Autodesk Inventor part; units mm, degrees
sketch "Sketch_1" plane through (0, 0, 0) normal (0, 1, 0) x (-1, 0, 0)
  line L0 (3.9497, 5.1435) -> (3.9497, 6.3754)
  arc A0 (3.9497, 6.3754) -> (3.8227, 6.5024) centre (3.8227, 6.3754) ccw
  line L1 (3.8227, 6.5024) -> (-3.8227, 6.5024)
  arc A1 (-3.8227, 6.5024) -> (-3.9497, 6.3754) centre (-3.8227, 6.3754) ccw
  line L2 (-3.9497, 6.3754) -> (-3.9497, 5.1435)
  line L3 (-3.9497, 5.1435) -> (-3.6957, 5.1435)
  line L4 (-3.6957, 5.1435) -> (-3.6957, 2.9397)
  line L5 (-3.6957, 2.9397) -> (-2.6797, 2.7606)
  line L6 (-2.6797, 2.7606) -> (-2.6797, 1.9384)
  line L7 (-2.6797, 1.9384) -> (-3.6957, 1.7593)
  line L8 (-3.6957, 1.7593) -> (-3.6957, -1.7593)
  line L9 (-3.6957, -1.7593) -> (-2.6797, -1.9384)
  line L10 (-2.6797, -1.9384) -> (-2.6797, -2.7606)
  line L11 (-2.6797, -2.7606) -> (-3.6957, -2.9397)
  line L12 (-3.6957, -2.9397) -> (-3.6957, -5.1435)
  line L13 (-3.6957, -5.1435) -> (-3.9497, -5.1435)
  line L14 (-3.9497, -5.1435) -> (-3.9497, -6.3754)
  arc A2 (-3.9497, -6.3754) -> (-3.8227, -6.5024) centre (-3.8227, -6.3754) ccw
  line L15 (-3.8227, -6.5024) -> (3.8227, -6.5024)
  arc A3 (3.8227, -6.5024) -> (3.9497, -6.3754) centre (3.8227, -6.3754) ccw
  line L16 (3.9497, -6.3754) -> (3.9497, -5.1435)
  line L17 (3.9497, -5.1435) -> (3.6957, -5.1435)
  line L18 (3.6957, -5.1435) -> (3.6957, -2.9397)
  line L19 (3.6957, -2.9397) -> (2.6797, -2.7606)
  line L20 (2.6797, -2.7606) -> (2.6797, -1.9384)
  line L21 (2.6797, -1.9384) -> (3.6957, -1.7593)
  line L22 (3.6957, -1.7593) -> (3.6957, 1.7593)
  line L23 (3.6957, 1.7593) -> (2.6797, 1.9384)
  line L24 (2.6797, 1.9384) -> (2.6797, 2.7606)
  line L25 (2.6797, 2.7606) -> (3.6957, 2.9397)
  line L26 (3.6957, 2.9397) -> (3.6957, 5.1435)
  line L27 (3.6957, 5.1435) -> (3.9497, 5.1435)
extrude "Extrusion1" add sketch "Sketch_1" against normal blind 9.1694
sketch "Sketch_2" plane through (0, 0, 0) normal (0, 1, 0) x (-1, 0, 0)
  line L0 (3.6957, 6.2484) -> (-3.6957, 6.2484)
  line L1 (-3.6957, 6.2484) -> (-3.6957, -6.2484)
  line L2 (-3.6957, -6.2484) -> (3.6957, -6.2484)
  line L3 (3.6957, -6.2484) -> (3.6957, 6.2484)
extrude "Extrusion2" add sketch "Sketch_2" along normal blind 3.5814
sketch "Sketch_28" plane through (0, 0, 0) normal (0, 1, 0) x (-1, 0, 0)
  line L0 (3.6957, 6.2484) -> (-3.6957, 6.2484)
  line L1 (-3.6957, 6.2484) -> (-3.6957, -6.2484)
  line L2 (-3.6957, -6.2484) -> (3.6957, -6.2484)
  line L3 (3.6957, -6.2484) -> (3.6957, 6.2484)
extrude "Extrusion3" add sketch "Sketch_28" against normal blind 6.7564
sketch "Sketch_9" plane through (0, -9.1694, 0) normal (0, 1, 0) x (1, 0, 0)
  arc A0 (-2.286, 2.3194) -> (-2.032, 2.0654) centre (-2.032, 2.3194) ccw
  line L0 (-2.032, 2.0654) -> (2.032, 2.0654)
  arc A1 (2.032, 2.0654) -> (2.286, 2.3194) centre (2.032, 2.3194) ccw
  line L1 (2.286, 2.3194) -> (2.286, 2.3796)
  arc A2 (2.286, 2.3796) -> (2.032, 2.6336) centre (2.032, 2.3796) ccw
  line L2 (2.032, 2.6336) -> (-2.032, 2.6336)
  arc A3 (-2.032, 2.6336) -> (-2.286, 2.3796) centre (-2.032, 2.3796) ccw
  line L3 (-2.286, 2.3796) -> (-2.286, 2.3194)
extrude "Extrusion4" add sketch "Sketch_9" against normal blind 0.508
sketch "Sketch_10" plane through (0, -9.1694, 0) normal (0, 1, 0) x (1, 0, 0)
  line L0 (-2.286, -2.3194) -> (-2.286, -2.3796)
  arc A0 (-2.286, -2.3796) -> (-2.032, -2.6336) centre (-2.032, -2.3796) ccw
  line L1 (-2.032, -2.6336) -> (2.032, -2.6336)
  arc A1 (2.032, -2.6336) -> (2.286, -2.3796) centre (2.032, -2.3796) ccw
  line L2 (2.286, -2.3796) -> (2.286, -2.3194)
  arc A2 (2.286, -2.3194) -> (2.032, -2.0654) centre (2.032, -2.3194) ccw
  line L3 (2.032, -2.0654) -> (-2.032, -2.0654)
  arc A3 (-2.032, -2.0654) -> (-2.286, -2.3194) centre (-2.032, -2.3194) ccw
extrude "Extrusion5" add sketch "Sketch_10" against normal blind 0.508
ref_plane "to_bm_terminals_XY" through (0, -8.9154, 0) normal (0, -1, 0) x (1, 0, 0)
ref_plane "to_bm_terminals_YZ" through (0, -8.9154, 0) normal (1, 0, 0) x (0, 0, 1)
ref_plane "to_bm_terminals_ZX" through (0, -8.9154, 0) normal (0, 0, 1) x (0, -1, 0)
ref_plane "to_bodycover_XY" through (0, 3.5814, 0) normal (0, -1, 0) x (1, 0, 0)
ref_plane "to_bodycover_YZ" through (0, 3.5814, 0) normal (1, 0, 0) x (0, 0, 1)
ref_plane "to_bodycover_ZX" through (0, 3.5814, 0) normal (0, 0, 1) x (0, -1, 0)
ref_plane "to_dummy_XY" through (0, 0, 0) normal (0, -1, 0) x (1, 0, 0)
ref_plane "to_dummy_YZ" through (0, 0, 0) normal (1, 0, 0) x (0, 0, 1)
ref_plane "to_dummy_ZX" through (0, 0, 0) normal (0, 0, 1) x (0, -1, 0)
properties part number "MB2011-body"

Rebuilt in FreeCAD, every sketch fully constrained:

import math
import FreeCAD as App
import Part
import Sketcher
from FreeCAD import Vector
Q = App.Units.Quantity


def add_polygon(sketch, points):
    """Adds a closed chain of lines whose ends are joined by coincident constraints."""
    first, n = sketch.GeometryCount, len(points)
    for a, b in zip(points, points[1:] + points[:1]):
        sketch.addGeometry(Part.LineSegment(App.Vector(*a, 0), App.Vector(*b, 0)), False)
    for i in range(n):
        sketch.addConstraint(Sketcher.Constraint("Coincident", first + i, 2, first + (i + 1) % n, 1))

doc = App.newDocument("Part")
body = doc.addObject("PartDesign::Body", "Body")

sketch1 = body.newObject("Sketcher::SketchObject", "Sketch")
sketch1.AttachmentSupport = (doc.getObject("XZ_Plane"), [""])
sketch1.MapMode = "FlatFace"
sketch1.addGeometry(Part.LineSegment(Vector(-3.6957, 5.1435, 0), Vector(-3.9497, 5.1435, 0)), False)
sketch1.addGeometry(Part.LineSegment(Vector(-3.9497, 5.1435, 0), Vector(-3.9497, 6.3754, 0)), False)
sketch1.addGeometry(Part.ArcOfCircle(Part.Circle(Vector(-3.8227, 6.3754, 0), Vector(0, 0, 1), 0.127), math.radians(90), math.radians(180)), False)
sketch1.addGeometry(Part.LineSegment(Vector(-3.8227, 6.5024, 0), Vector(3.8227, 6.5024, 0)), False)
sketch1.addGeometry(Part.ArcOfCircle(Part.Circle(Vector(3.8227, 6.3754, 0), Vector(0, 0, 1), 0.127), math.radians(0), math.radians(90)), False)
sketch1.addGeometry(Part.LineSegment(Vector(3.9497, 6.3754, 0), Vector(3.9497, 5.1435, 0)), False)
sketch1.addGeometry(Part.LineSegment(Vector(3.9497, 5.1435, 0), Vector(3.6957, 5.1435, 0)), False)
sketch1.addGeometry(Part.LineSegment(Vector(3.6957, 5.1435, 0), Vector(3.6957, 2.9397, 0)), False)
sketch1.addGeometry(Part.LineSegment(Vector(3.6957, 2.9397, 0), Vector(2.6797, 2.7606, 0)), False)
sketch1.addGeometry(Part.LineSegment(Vector(2.6797, 2.7606, 0), Vector(2.6797, 1.9384, 0)), False)
sketch1.addGeometry(Part.LineSegment(Vector(2.6797, 1.9384, 0), Vector(3.6957, 1.7593, 0)), False)
sketch1.addGeometry(Part.LineSegment(Vector(3.6957, 1.7593, 0), Vector(3.6957, -1.7593, 0)), False)
sketch1.addGeometry(Part.LineSegment(Vector(3.6957, -1.7593, 0), Vector(2.6797, -1.9384, 0)), False)
sketch1.addGeometry(Part.LineSegment(Vector(2.6797, -1.9384, 0), Vector(2.6797, -2.7606, 0)), False)
sketch1.addGeometry(Part.LineSegment(Vector(2.6797, -2.7606, 0), Vector(3.6957, -2.9397, 0)), False)
sketch1.addGeometry(Part.LineSegment(Vector(3.6957, -2.9397, 0), Vector(3.6957, -5.1435, 0)), False)
sketch1.addGeometry(Part.LineSegment(Vector(3.6957, -5.1435, 0), Vector(3.9497, -5.1435, 0)), False)
sketch1.addGeometry(Part.LineSegment(Vector(3.9497, -5.1435, 0), Vector(3.9497, -6.3754, 0)), False)
sketch1.addGeometry(Part.ArcOfCircle(Part.Circle(Vector(3.8227, -6.3754, 0), Vector(0, 0, 1), 0.127), math.radians(-90), math.radians(0)), False)
sketch1.addGeometry(Part.LineSegment(Vector(3.8227, -6.5024, 0), Vector(-3.8227, -6.5024, 0)), False)
sketch1.addGeometry(Part.ArcOfCircle(Part.Circle(Vector(-3.8227, -6.3754, 0), Vector(0, 0, 1), 0.127), math.radians(180), math.radians(270)), False)
sketch1.addGeometry(Part.LineSegment(Vector(-3.9497, -6.3754, 0), Vector(-3.9497, -5.1435, 0)), False)
sketch1.addGeometry(Part.LineSegment(Vector(-3.9497, -5.1435, 0), Vector(-3.6957, -5.1435, 0)), False)
sketch1.addGeometry(Part.LineSegment(Vector(-3.6957, -5.1435, 0), Vector(-3.6957, -2.9397, 0)), False)
sketch1.addGeometry(Part.LineSegment(Vector(-3.6957, -2.9397, 0), Vector(-2.6797, -2.7606, 0)), False)
sketch1.addGeometry(Part.LineSegment(Vector(-2.6797, -2.7606, 0), Vector(-2.6797, -1.9384, 0)), False)
sketch1.addGeometry(Part.LineSegment(Vector(-2.6797, -1.9384, 0), Vector(-3.6957, -1.7593, 0)), False)
sketch1.addGeometry(Part.LineSegment(Vector(-3.6957, -1.7593, 0), Vector(-3.6957, 1.7593, 0)), False)
sketch1.addGeometry(Part.LineSegment(Vector(-3.6957, 1.7593, 0), Vector(-2.6797, 1.9384, 0)), False)
sketch1.addGeometry(Part.LineSegment(Vector(-2.6797, 1.9384, 0), Vector(-2.6797, 2.7606, 0)), False)
sketch1.addGeometry(Part.LineSegment(Vector(-2.6797, 2.7606, 0), Vector(-3.6957, 2.9397, 0)), False)
sketch1.addGeometry(Part.LineSegment(Vector(-3.6957, 2.9397, 0), Vector(-3.6957, 5.1435, 0)), False)
sketch1.addConstraint(Sketcher.Constraint("Coincident", 0, 2, 1, 1))
sketch1.addConstraint(Sketcher.Constraint("Tangent", 1, 2, 2, 2))
sketch1.addConstraint(Sketcher.Constraint("Tangent", 2, 1, 3, 1))
sketch1.addConstraint(Sketcher.Constraint("Tangent", 3, 2, 4, 2))
sketch1.addConstraint(Sketcher.Constraint("Tangent", 4, 1, 5, 1))
sketch1.addConstraint(Sketcher.Constraint("Coincident", 5, 2, 6, 1))
sketch1.addConstraint(Sketcher.Constraint("Coincident", 6, 2, 7, 1))
sketch1.addConstraint(Sketcher.Constraint("Coincident", 7, 2, 8, 1))
sketch1.addConstraint(Sketcher.Constraint("Coincident", 8, 2, 9, 1))
sketch1.addConstraint(Sketcher.Constraint("Coincident", 9, 2, 10, 1))
sketch1.addConstraint(Sketcher.Constraint("Coincident", 10, 2, 11, 1))
sketch1.addConstraint(Sketcher.Constraint("Coincident", 11, 2, 12, 1))
sketch1.addConstraint(Sketcher.Constraint("Coincident", 12, 2, 13, 1))
sketch1.addConstraint(Sketcher.Constraint("Coincident", 13, 2, 14, 1))
sketch1.addConstraint(Sketcher.Constraint("Coincident", 14, 2, 15, 1))
sketch1.addConstraint(Sketcher.Constraint("Coincident", 15, 2, 16, 1))
sketch1.addConstraint(Sketcher.Constraint("Coincident", 16, 2, 17, 1))
sketch1.addConstraint(Sketcher.Constraint("Tangent", 17, 2, 18, 2))
sketch1.addConstraint(Sketcher.Constraint("Tangent", 18, 1, 19, 1))
sketch1.addConstraint(Sketcher.Constraint("Tangent", 19, 2, 20, 2))
sketch1.addConstraint(Sketcher.Constraint("Tangent", 20, 1, 21, 1))
sketch1.addConstraint(Sketcher.Constraint("Coincident", 21, 2, 22, 1))
sketch1.addConstraint(Sketcher.Constraint("Coincident", 22, 2, 23, 1))
sketch1.addConstraint(Sketcher.Constraint("Coincident", 23, 2, 24, 1))
sketch1.addConstraint(Sketcher.Constraint("Coincident", 24, 2, 25, 1))
sketch1.addConstraint(Sketcher.Constraint("Coincident", 25, 2, 26, 1))
sketch1.addConstraint(Sketcher.Constraint("Coincident", 26, 2, 27, 1))
sketch1.addConstraint(Sketcher.Constraint("Coincident", 27, 2, 28, 1))
sketch1.addConstraint(Sketcher.Constraint("Coincident", 28, 2, 29, 1))
sketch1.addConstraint(Sketcher.Constraint("Coincident", 29, 2, 30, 1))
sketch1.addConstraint(Sketcher.Constraint("Coincident", 30, 2, 31, 1))
sketch1.addConstraint(Sketcher.Constraint("Coincident", 31, 2, 0, 1))
sketch1.addConstraint(Sketcher.Constraint("Horizontal", 0))
sketch1.addConstraint(Sketcher.Constraint("Vertical", 1))
sketch1.addConstraint(Sketcher.Constraint("Horizontal", 3))
sketch1.addConstraint(Sketcher.Constraint("Vertical", 5))
sketch1.addConstraint(Sketcher.Constraint("Horizontal", 6))
sketch1.addConstraint(Sketcher.Constraint("Vertical", 7))
sketch1.addConstraint(Sketcher.Constraint("Vertical", 9))
sketch1.addConstraint(Sketcher.Constraint("Vertical", 11))
sketch1.addConstraint(Sketcher.Constraint("Vertical", 13))
sketch1.addConstraint(Sketcher.Constraint("Vertical", 15))
sketch1.addConstraint(Sketcher.Constraint("Horizontal", 16))
sketch1.addConstraint(Sketcher.Constraint("Vertical", 17))
sketch1.addConstraint(Sketcher.Constraint("Horizontal", 19))
sketch1.addConstraint(Sketcher.Constraint("Vertical", 21))
sketch1.addConstraint(Sketcher.Constraint("Horizontal", 22))
sketch1.addConstraint(Sketcher.Constraint("Vertical", 23))
sketch1.addConstraint(Sketcher.Constraint("Vertical", 25))
sketch1.addConstraint(Sketcher.Constraint("Vertical", 27))
sketch1.addConstraint(Sketcher.Constraint("Vertical", 29))
sketch1.addConstraint(Sketcher.Constraint("Vertical", 31))
sketch1.addConstraint(Sketcher.Constraint("Equal", 2, 4))
sketch1.addConstraint(Sketcher.Constraint("Equal", 4, 18))
sketch1.addConstraint(Sketcher.Constraint("Equal", 18, 20))
sketch1.addConstraint(Sketcher.Constraint("Symmetric", 2, 3, 18, 3, -1, 1))
sketch1.addConstraint(Sketcher.Constraint("Symmetric", 5, 2, 21, 2, -1, 1))
sketch1.addConstraint(Sketcher.Constraint("Symmetric", 7, 2, 23, 2, -1, 1))
sketch1.addConstraint(Sketcher.Constraint("Symmetric", 8, 2, 24, 2, -1, 1))
sketch1.addConstraint(Sketcher.Constraint("Symmetric", 10, 2, 26, 2, -1, 1))
sketch1.addConstraint(Sketcher.Constraint("Symmetric", 12, 2, 28, 2, -1, 1))
sketch1.addConstraint(Sketcher.Constraint("Symmetric", 14, 2, 30, 2, -1, 1))
sketch1.addConstraint(Sketcher.Constraint("Symmetric", 0, 2, 5, 2, -2))
sketch1.addConstraint(Sketcher.Constraint("Symmetric", 15, 2, 22, 2, -2))
sketch1.addConstraint(Sketcher.Constraint("Symmetric", 13, 2, 24, 2, -2))
sketch1.addConstraint(Sketcher.Constraint("Parallel", 8, 12))
sketch1.addConstraint(Sketcher.Constraint("Parallel", 10, 14))
sketch1.addConstraint(Sketcher.Constraint("Parallel", 14, 26))
sketch1.addConstraint(Sketcher.Constraint("Parallel", 24, 28))
sketch1.addConstraint(Sketcher.Constraint("Parallel", 26, 30))
sketch1.addConstraint(Sketcher.Constraint("Horizontal", 14, 2, 23, 2))
sketch1.addConstraint(Sketcher.Constraint("Horizontal", 12, 2, 25, 2))
sketch1.addConstraint(Sketcher.Constraint("Vertical", 7, 2, 10, 2))
sketch1.addConstraint(Sketcher.Constraint("Radius", 2, Q("0.005 in")))
sketch1.addConstraint(Sketcher.Constraint("DistanceX", 0, 2, 0, 1, Q("0.01 in")))
sketch1.addConstraint(Sketcher.Constraint("DistanceX", 3, 1, 3, 2, Q("0.301 in")))
sketch1.addConstraint(Sketcher.Constraint("DistanceX", 8, 2, 7, 2, Q("0.04 in")))
sketch1.addConstraint(Sketcher.Constraint("DistanceY", 1, 1, 1, 2, Q("0.0485 in")))
sketch1.addConstraint(Sketcher.Constraint("DistanceY", -1, 1, 2, 3, Q("0.251 in")))
sketch1.addConstraint(Sketcher.Constraint("DistanceY", 11, 2, 7, 2, Q("0.185 in")))
sketch1.addConstraint(Sketcher.Constraint("DistanceY", 7, 2, 7, 1, 2.2038))
sketch1.addConstraint(Sketcher.Constraint("DistanceY", 9, 2, 9, 1, 0.8222))
pad1 = body.newObject("PartDesign::Pad", "Pad")
pad1.Profile = sketch1
pad1.Length = Q("0.361 in")

sketch2 = body.newObject("Sketcher::SketchObject", "Sketch001")
sketch2.AttachmentSupport = (doc.getObject("XZ_Plane"), [""])
sketch2.MapMode = "FlatFace"
add_polygon(sketch2, [(-3.6957, -6.2484), (-3.6957, 6.2484), (3.6957, 6.2484), (3.6957, -6.2484)])
sketch2.addConstraint(Sketcher.Constraint("Vertical", 0))
sketch2.addConstraint(Sketcher.Constraint("Horizontal", 1))
sketch2.addConstraint(Sketcher.Constraint("Vertical", 2))
sketch2.addConstraint(Sketcher.Constraint("Horizontal", 3))
sketch2.addConstraint(Sketcher.Constraint("Symmetric", 0, 2, 2, 2, -1, 1))
sketch2.addConstraint(Sketcher.Constraint("DistanceX", 1, 1, 1, 2, Q("0.291 in")))
sketch2.addConstraint(Sketcher.Constraint("DistanceY", 0, 1, 0, 2, Q("0.492 in")))
pad2 = body.newObject("PartDesign::Pad", "Pad001")
pad2.Profile = sketch2
pad2.Length = Q("0.141 in")
pad2.Reversed = True

sketch3 = body.newObject("Sketcher::SketchObject", "Sketch002")
sketch3.AttachmentSupport = (doc.getObject("XZ_Plane"), [""])
sketch3.MapMode = "FlatFace"
add_polygon(sketch3, [(-3.6957, -6.2484), (-3.6957, 6.2484), (3.6957, 6.2484), (3.6957, -6.2484)])
sketch3.addConstraint(Sketcher.Constraint("Vertical", 0))
sketch3.addConstraint(Sketcher.Constraint("Horizontal", 1))
sketch3.addConstraint(Sketcher.Constraint("Vertical", 2))
sketch3.addConstraint(Sketcher.Constraint("Horizontal", 3))
sketch3.addConstraint(Sketcher.Constraint("Symmetric", 0, 2, 2, 2, -1, 1))
sketch3.addConstraint(Sketcher.Constraint("DistanceX", 1, 1, 1, 2, Q("0.291 in")))
sketch3.addConstraint(Sketcher.Constraint("DistanceY", 0, 1, 0, 2, Q("0.492 in")))
pad3 = body.newObject("PartDesign::Pad", "Pad002")
pad3.Profile = sketch3
pad3.Length = Q("0.266 in")

sketch4 = body.newObject("Sketcher::SketchObject", "Sketch003")
sketch4.AttachmentSupport = (doc.getObject("XZ_Plane"), [""])
sketch4.MapMode = "FlatFace"
sketch4.AttachmentOffset = App.Placement(Vector(0, 0, 0.361 * 25.4), App.Rotation())
sketch4.addGeometry(Part.LineSegment(Vector(-2.286, -2.3796, 0), Vector(-2.286, -2.3194, 0)), False)
sketch4.addGeometry(Part.ArcOfCircle(Part.Circle(Vector(-2.032, -2.3194, 0), Vector(0, 0, 1), 0.254), math.radians(90), math.radians(180)), False)
sketch4.addGeometry(Part.LineSegment(Vector(-2.032, -2.0654, 0), Vector(2.032, -2.0654, 0)), False)
sketch4.addGeometry(Part.ArcOfCircle(Part.Circle(Vector(2.032, -2.3194, 0), Vector(0, 0, 1), 0.254), math.radians(0), math.radians(90)), False)
sketch4.addGeometry(Part.LineSegment(Vector(2.286, -2.3194, 0), Vector(2.286, -2.3796, 0)), False)
sketch4.addGeometry(Part.ArcOfCircle(Part.Circle(Vector(2.032, -2.3796, 0), Vector(0, 0, 1), 0.254), math.radians(-90), math.radians(0)), False)
sketch4.addGeometry(Part.LineSegment(Vector(2.032, -2.6336, 0), Vector(-2.032, -2.6336, 0)), False)
sketch4.addGeometry(Part.ArcOfCircle(Part.Circle(Vector(-2.032, -2.3796, 0), Vector(0, 0, 1), 0.254), math.radians(180), math.radians(270)), False)
sketch4.addConstraint(Sketcher.Constraint("Tangent", 0, 2, 1, 2))
sketch4.addConstraint(Sketcher.Constraint("Tangent", 1, 1, 2, 1))
sketch4.addConstraint(Sketcher.Constraint("Tangent", 2, 2, 3, 2))
sketch4.addConstraint(Sketcher.Constraint("Tangent", 3, 1, 4, 1))
sketch4.addConstraint(Sketcher.Constraint("Tangent", 4, 2, 5, 2))
sketch4.addConstraint(Sketcher.Constraint("Tangent", 5, 1, 6, 1))
sketch4.addConstraint(Sketcher.Constraint("Tangent", 6, 2, 7, 2))
sketch4.addConstraint(Sketcher.Constraint("Tangent", 7, 1, 0, 1))
sketch4.addConstraint(Sketcher.Constraint("Vertical", 0))
sketch4.addConstraint(Sketcher.Constraint("Horizontal", 2))
sketch4.addConstraint(Sketcher.Constraint("Vertical", 4))
sketch4.addConstraint(Sketcher.Constraint("Horizontal", 6))
sketch4.addConstraint(Sketcher.Constraint("Equal", 1, 3))
sketch4.addConstraint(Sketcher.Constraint("Equal", 3, 5))
sketch4.addConstraint(Sketcher.Constraint("Equal", 5, 7))
sketch4.addConstraint(Sketcher.Constraint("Radius", 1, Q("0.01 in")))
sketch4.addConstraint(Sketcher.Constraint("DistanceX", 2, 1, 2, 2, Q("0.16 in")))
sketch4.addConstraint(Sketcher.Constraint("DistanceX", 1, 3, -1, 1, Q("0.08 in")))
sketch4.addConstraint(Sketcher.Constraint("DistanceY", 0, 1, 0, 2, 0.0602))
sketch4.addConstraint(Sketcher.Constraint("DistanceY", 1, 3, -1, 1, 2.3194))
pad4 = body.newObject("PartDesign::Pad", "Pad003")
pad4.Profile = sketch4
pad4.Length = Q("0.02 in")

sketch5 = body.newObject("Sketcher::SketchObject", "Sketch004")
sketch5.AttachmentSupport = (doc.getObject("XZ_Plane"), [""])
sketch5.MapMode = "FlatFace"
sketch5.AttachmentOffset = App.Placement(Vector(0, 0, 0.361 * 25.4), App.Rotation())
sketch5.addGeometry(Part.ArcOfCircle(Part.Circle(Vector(-2.032, 2.3194, 0), Vector(0, 0, 1), 0.254), math.radians(180), math.radians(270)), False)
sketch5.addGeometry(Part.LineSegment(Vector(-2.286, 2.3194, 0), Vector(-2.286, 2.3796, 0)), False)
sketch5.addGeometry(Part.ArcOfCircle(Part.Circle(Vector(-2.032, 2.3796, 0), Vector(0, 0, 1), 0.254), math.radians(90), math.radians(180)), False)
sketch5.addGeometry(Part.LineSegment(Vector(-2.032, 2.6336, 0), Vector(2.032, 2.6336, 0)), False)
sketch5.addGeometry(Part.ArcOfCircle(Part.Circle(Vector(2.032, 2.3796, 0), Vector(0, 0, 1), 0.254), math.radians(0), math.radians(90)), False)
sketch5.addGeometry(Part.LineSegment(Vector(2.286, 2.3796, 0), Vector(2.286, 2.3194, 0)), False)
sketch5.addGeometry(Part.ArcOfCircle(Part.Circle(Vector(2.032, 2.3194, 0), Vector(0, 0, 1), 0.254), math.radians(-90), math.radians(0)), False)
sketch5.addGeometry(Part.LineSegment(Vector(2.032, 2.0654, 0), Vector(-2.032, 2.0654, 0)), False)
sketch5.addConstraint(Sketcher.Constraint("Tangent", 0, 1, 1, 1))
sketch5.addConstraint(Sketcher.Constraint("Tangent", 1, 2, 2, 2))
sketch5.addConstraint(Sketcher.Constraint("Tangent", 2, 1, 3, 1))
sketch5.addConstraint(Sketcher.Constraint("Tangent", 3, 2, 4, 2))
sketch5.addConstraint(Sketcher.Constraint("Tangent", 4, 1, 5, 1))
sketch5.addConstraint(Sketcher.Constraint("Tangent", 5, 2, 6, 2))
sketch5.addConstraint(Sketcher.Constraint("Tangent", 6, 1, 7, 1))
sketch5.addConstraint(Sketcher.Constraint("Tangent", 7, 2, 0, 2))
sketch5.addConstraint(Sketcher.Constraint("Vertical", 1))
sketch5.addConstraint(Sketcher.Constraint("Horizontal", 3))
sketch5.addConstraint(Sketcher.Constraint("Vertical", 5))
sketch5.addConstraint(Sketcher.Constraint("Horizontal", 7))
sketch5.addConstraint(Sketcher.Constraint("Equal", 0, 2))
sketch5.addConstraint(Sketcher.Constraint("Equal", 2, 4))
sketch5.addConstraint(Sketcher.Constraint("Equal", 4, 6))
sketch5.addConstraint(Sketcher.Constraint("Radius", 0, Q("0.01 in")))
sketch5.addConstraint(Sketcher.Constraint("DistanceX", 3, 1, 3, 2, Q("0.16 in")))
sketch5.addConstraint(Sketcher.Constraint("DistanceX", 0, 3, -1, 1, Q("0.08 in")))
sketch5.addConstraint(Sketcher.Constraint("DistanceY", 1, 1, 1, 2, 0.0602))
sketch5.addConstraint(Sketcher.Constraint("DistanceY", -1, 1, 0, 3, 2.3194))
pad5 = body.newObject("PartDesign::Pad", "Pad004")
pad5.Profile = sketch5
pad5.Length = Q("0.02 in")

doc.recompute()
